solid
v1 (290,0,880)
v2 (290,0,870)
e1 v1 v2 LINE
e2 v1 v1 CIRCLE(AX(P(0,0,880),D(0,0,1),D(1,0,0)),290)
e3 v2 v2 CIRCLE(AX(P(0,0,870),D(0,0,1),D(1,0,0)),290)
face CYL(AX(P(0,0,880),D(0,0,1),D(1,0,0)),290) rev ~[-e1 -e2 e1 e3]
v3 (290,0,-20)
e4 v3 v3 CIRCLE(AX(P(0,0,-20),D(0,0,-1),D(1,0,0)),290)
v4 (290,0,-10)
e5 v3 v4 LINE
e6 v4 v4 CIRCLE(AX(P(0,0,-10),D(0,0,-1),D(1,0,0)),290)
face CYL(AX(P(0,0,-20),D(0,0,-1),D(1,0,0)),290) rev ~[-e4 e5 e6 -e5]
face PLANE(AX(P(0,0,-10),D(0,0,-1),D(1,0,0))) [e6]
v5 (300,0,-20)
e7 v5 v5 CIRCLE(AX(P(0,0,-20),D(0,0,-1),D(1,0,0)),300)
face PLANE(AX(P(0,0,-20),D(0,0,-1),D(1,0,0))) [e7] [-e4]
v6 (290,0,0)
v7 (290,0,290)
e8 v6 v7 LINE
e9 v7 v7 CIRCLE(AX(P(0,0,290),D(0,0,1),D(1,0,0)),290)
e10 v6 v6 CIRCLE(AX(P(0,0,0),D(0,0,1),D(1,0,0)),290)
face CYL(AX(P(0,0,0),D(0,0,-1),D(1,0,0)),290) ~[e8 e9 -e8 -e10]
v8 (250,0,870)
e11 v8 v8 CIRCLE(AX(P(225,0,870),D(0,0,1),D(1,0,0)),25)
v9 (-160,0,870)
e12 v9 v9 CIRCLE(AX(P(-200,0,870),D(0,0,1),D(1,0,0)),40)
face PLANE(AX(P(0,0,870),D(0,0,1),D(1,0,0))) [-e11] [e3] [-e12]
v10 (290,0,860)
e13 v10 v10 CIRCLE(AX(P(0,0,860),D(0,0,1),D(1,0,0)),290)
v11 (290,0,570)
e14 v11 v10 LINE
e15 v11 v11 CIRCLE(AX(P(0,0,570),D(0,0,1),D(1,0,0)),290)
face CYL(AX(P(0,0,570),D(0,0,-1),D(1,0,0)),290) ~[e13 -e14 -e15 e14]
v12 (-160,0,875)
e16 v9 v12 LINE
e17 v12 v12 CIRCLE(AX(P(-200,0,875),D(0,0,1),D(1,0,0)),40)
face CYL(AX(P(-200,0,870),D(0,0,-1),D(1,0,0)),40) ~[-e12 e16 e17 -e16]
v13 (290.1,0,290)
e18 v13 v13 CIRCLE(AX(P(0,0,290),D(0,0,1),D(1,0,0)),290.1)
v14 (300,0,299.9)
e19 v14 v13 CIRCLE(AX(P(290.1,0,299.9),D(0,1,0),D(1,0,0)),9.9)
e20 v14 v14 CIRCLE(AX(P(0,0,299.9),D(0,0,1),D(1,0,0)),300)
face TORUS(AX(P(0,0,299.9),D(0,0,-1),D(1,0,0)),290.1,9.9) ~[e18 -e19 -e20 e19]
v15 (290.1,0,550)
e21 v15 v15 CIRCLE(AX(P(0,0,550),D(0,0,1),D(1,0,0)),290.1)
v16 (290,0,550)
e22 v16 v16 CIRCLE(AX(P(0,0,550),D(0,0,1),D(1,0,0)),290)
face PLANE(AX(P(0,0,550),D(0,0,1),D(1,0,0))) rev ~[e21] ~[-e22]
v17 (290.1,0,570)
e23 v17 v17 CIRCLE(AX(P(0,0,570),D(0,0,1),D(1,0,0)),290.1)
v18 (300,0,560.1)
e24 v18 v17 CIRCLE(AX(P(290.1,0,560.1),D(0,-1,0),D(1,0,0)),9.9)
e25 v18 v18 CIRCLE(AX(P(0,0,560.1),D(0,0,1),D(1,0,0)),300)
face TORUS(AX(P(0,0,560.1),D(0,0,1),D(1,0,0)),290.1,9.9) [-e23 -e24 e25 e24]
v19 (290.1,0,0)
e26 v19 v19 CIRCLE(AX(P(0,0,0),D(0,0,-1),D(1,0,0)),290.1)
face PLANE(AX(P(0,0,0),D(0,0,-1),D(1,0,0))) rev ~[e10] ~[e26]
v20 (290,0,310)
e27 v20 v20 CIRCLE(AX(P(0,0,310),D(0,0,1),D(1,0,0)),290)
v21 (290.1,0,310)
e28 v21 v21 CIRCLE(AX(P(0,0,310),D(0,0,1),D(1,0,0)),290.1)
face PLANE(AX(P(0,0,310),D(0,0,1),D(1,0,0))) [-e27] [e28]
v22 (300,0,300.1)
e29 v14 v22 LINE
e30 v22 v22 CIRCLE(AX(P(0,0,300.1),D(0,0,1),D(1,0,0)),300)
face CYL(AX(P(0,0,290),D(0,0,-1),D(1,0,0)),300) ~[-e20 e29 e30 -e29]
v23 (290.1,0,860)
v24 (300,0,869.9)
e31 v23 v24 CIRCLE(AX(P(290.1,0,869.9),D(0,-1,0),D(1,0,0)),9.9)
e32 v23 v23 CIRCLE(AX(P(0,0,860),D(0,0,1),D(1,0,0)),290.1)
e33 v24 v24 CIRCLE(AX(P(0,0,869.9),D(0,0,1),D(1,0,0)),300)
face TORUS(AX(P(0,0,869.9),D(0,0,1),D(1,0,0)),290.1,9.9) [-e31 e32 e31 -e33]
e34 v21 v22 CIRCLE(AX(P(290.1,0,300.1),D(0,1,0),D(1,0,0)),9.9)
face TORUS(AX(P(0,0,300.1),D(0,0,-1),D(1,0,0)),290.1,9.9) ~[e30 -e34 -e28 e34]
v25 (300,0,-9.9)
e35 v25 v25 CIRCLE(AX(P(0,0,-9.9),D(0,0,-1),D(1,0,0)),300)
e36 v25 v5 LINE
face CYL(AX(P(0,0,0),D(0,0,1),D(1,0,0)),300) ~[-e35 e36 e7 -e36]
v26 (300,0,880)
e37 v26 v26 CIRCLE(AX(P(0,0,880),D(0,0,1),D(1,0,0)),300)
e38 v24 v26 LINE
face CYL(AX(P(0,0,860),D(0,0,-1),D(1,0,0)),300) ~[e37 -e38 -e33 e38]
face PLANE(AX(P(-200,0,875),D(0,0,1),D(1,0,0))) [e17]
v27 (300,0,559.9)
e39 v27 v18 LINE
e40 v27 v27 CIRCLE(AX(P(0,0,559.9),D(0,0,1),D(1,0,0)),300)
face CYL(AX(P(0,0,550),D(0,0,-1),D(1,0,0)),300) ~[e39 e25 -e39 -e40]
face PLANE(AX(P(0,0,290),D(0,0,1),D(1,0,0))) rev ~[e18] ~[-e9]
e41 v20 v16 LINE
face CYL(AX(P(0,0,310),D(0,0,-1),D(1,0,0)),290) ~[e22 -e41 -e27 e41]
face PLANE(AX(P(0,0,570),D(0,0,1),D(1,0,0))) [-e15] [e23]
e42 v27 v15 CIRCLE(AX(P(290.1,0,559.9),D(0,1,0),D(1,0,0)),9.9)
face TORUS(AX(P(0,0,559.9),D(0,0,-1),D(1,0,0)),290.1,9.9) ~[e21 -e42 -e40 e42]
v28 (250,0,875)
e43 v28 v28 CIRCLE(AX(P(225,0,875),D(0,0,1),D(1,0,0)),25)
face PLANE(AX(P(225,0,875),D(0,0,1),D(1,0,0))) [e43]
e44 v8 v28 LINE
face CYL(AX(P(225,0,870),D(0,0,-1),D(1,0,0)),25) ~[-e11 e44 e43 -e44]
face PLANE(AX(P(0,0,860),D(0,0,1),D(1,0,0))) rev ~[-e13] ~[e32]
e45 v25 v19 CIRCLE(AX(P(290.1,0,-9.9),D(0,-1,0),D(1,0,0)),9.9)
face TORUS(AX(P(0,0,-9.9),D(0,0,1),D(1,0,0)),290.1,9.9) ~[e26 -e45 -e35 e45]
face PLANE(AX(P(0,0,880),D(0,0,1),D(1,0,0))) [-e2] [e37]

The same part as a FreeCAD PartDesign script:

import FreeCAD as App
import Part
import Sketcher
from FreeCAD import Vector
Q = App.Units.Quantity


def edges_at(feature, points):
    """Names of the edges that pass closest to the given points."""
    edges = feature.Shape.Edges
    near = lambda p: min(range(len(edges)), key=lambda i: edges[i].distToShape(Part.Vertex(*p))[0])
    return sorted({f"Edge{near(p) + 1}" for p in points})

doc = App.newDocument("Part")
params = doc.addObject("Spreadsheet::Sheet", "Params")
for row, (alias, value) in enumerate([
    ("sketch1_diameter", "580 mm"),
    ("pad1_length", "290 mm"),
    ("sketch2_diameter", "600 mm"),
    ("pad2_length", "20 mm"),
    ("sketch3_diameter", "580 mm"),
    ("pad3_length", "240 mm"),
    ("sketch4_diameter", "600 mm"),
    ("pad4_length", "20 mm"),
    ("sketch5_diameter", "580 mm"),
    ("pad5_length", "290 mm"),
    ("fillet_radius", "9.9 mm"),
    ("sketch6_diameter", "600 mm"),
    ("pad6_length", "20 mm"),
    ("sketch7_diameter", "600 mm"),
    ("pad7_length", "20 mm"),
    ("fillet2_radius", "9.9 mm"),
    ("sketch8_diameter", "580 mm"),
    ("pocket1_length", "10 mm"),
    ("sketch9_diameter", "580 mm"),
    ("pocket2_length", "10 mm"),
    ("sketch10_diameter", "80 mm"),
    ("sketch10_diameter2", "50 mm"),
    ("pad8_length", "5 mm"),
], start=1):
    params.set(f"A{row}", alias)
    params.set(f"B{row}", "=" + value)
    params.setAlias(f"B{row}", alias)

body = doc.addObject("PartDesign::Body", "Body")

# Sketch on XY plane
sketch1 = doc.addObject("Sketcher::SketchObject", "Sketch")
body.addObject(sketch1)
sketch1.AttachmentSupport = (doc.XY_Plane, [""])
sketch1.MapMode = "FlatFace"
sketch1.addGeometry(Part.Circle(Vector(0, 0, 0), Vector(0, 0, 1), 290), False)
sketch1.addConstraint(Sketcher.Constraint("Coincident", 0, 3, -1, 1))
sketch1.addConstraint(Sketcher.Constraint("Diameter", 0, Q("580 mm")))
sketch1.setExpression("Constraints[1]", "Params.sketch1_diameter")
pad1 = doc.addObject("PartDesign::Pad", "Pad")
body.addObject(pad1)
pad1.Profile = sketch1
pad1.setExpression("Length", "Params.pad1_length")

# Sketch on XY plane
sketch2 = doc.addObject("Sketcher::SketchObject", "Sketch001")
body.addObject(sketch2)
sketch2.AttachmentSupport = (doc.XY_Plane, [""])
sketch2.MapMode = "FlatFace"
sketch2.AttachmentOffset = App.Placement(Vector(0, 0, 290), App.Rotation())
sketch2.addGeometry(Part.Circle(Vector(0, 0, 0), Vector(0, 0, 1), 300), False)
sketch2.addConstraint(Sketcher.Constraint("Coincident", 0, 3, -1, 1))
sketch2.addConstraint(Sketcher.Constraint("Diameter", 0, Q("600 mm")))
sketch2.setExpression("Constraints[1]", "Params.sketch2_diameter")
pad2 = doc.addObject("PartDesign::Pad", "Pad001")
body.addObject(pad2)
pad2.Profile = sketch2
pad2.setExpression("Length", "Params.pad2_length")

# Sketch on XY plane
sketch3 = doc.addObject("Sketcher::SketchObject", "Sketch002")
body.addObject(sketch3)
sketch3.AttachmentSupport = (doc.XY_Plane, [""])
sketch3.MapMode = "FlatFace"
sketch3.AttachmentOffset = App.Placement(Vector(0, 0, 310), App.Rotation())
sketch3.addGeometry(Part.Circle(Vector(0, 0, 0), Vector(0, 0, 1), 290), False)
sketch3.addConstraint(Sketcher.Constraint("Coincident", 0, 3, -1, 1))
sketch3.addConstraint(Sketcher.Constraint("Diameter", 0, Q("580 mm")))
sketch3.setExpression("Constraints[1]", "Params.sketch3_diameter")
pad3 = doc.addObject("PartDesign::Pad", "Pad002")
body.addObject(pad3)
pad3.Profile = sketch3
pad3.setExpression("Length", "Params.pad3_length")

# Sketch on XY plane
sketch4 = doc.addObject("Sketcher::SketchObject", "Sketch003")
body.addObject(sketch4)
sketch4.AttachmentSupport = (doc.XY_Plane, [""])
sketch4.MapMode = "FlatFace"
sketch4.AttachmentOffset = App.Placement(Vector(0, 0, 550), App.Rotation())
sketch4.addGeometry(Part.Circle(Vector(0, 0, 0), Vector(0, 0, 1), 300), False)
sketch4.addConstraint(Sketcher.Constraint("Coincident", 0, 3, -1, 1))
sketch4.addConstraint(Sketcher.Constraint("Diameter", 0, Q("600 mm")))
sketch4.setExpression("Constraints[1]", "Params.sketch4_diameter")
pad4 = doc.addObject("PartDesign::Pad", "Pad003")
body.addObject(pad4)
pad4.Profile = sketch4
pad4.setExpression("Length", "Params.pad4_length")

# Sketch on XY plane
sketch5 = doc.addObject("Sketcher::SketchObject", "Sketch004")
body.addObject(sketch5)
sketch5.AttachmentSupport = (doc.XY_Plane, [""])
sketch5.MapMode = "FlatFace"
sketch5.AttachmentOffset = App.Placement(Vector(0, 0, 570), App.Rotation())
sketch5.addGeometry(Part.Circle(Vector(0, 0, 0), Vector(0, 0, 1), 290), False)
sketch5.addConstraint(Sketcher.Constraint("Coincident", 0, 3, -1, 1))
sketch5.addConstraint(Sketcher.Constraint("Diameter", 0, Q("580 mm")))
sketch5.setExpression("Constraints[1]", "Params.sketch5_diameter")
pad5 = doc.addObject("PartDesign::Pad", "Pad004")
body.addObject(pad5)
pad5.Profile = sketch5
pad5.setExpression("Length", "Params.pad5_length")
doc.recompute()

fillet = doc.addObject("PartDesign::Fillet", "Fillet")
body.addObject(fillet)
fillet.Base = (pad5, edges_at(pad5, [
    (300, 0, 560),
    (-300, 0, 550),
    (-300, 0, 570),
    (300, 0, 300),
    (-300, 0, 290),
    (-300, 0, 310),
]))
fillet.setExpression("Radius", "Params.fillet_radius")

# Sketch on XY plane
sketch6 = doc.addObject("Sketcher::SketchObject", "Sketch005")
body.addObject(sketch6)
sketch6.AttachmentSupport = (doc.XY_Plane, [""])
sketch6.MapMode = "FlatFace"
sketch6.AttachmentOffset = App.Placement(Vector(0, 0, 860), App.Rotation())
sketch6.addGeometry(Part.Circle(Vector(0, 0, 0), Vector(0, 0, 1), 300), False)
sketch6.addConstraint(Sketcher.Constraint("Coincident", 0, 3, -1, 1))
sketch6.addConstraint(Sketcher.Constraint("Diameter", 0, Q("600 mm")))
sketch6.setExpression("Constraints[1]", "Params.sketch6_diameter")
pad6 = doc.addObject("PartDesign::Pad", "Pad005")
body.addObject(pad6)
pad6.Profile = sketch6
pad6.setExpression("Length", "Params.pad6_length")

# Sketch on XY plane
sketch7 = doc.addObject("Sketcher::SketchObject", "Sketch006")
body.addObject(sketch7)
sketch7.AttachmentSupport = (doc.XY_Plane, [""])
sketch7.MapMode = "FlatFace"
sketch7.addGeometry(Part.Circle(Vector(0, 0, 0), Vector(0, 0, 1), 300), False)
sketch7.addConstraint(Sketcher.Constraint("Coincident", 0, 3, -1, 1))
sketch7.addConstraint(Sketcher.Constraint("Diameter", 0, Q("600 mm")))
sketch7.setExpression("Constraints[1]", "Params.sketch7_diameter")
pad7 = doc.addObject("PartDesign::Pad", "Pad006")
body.addObject(pad7)
pad7.Profile = sketch7
pad7.setExpression("Length", "Params.pad7_length")
pad7.Reversed = True
doc.recompute()

fillet2 = doc.addObject("PartDesign::Fillet", "Fillet001")
body.addObject(fillet2)
fillet2.Base = (pad7, edges_at(pad7, [(-300, 0, 860), (-300, 0, 0)]))
fillet2.setExpression("Radius", "Params.fillet2_radius")

# Sketch on XY plane
sketch8 = doc.addObject("Sketcher::SketchObject", "Sketch007")
body.addObject(sketch8)
sketch8.AttachmentSupport = (doc.XY_Plane, [""])
sketch8.MapMode = "FlatFace"
sketch8.AttachmentOffset = App.Placement(Vector(0, 0, 880), App.Rotation())
sketch8.addGeometry(Part.Circle(Vector(0, 0, 0), Vector(0, 0, 1), 290), False)
sketch8.addConstraint(Sketcher.Constraint("Coincident", 0, 3, -1, 1))
sketch8.addConstraint(Sketcher.Constraint("Diameter", 0, Q("580 mm")))
sketch8.setExpression("Constraints[1]", "Params.sketch8_diameter")
pocket1 = doc.addObject("PartDesign::Pocket", "Pocket")
body.addObject(pocket1)
pocket1.Profile = sketch8
pocket1.setExpression("Length", "Params.pocket1_length")

# Sketch on XY plane
sketch9 = doc.addObject("Sketcher::SketchObject", "Sketch008")
body.addObject(sketch9)
sketch9.AttachmentSupport = (doc.XY_Plane, [""])
sketch9.MapMode = "FlatFace"
sketch9.AttachmentOffset = App.Placement(Vector(0, 0, -20), App.Rotation())
sketch9.addGeometry(Part.Circle(Vector(0, 0, 0), Vector(0, 0, 1), 290), False)
sketch9.addConstraint(Sketcher.Constraint("Coincident", 0, 3, -1, 1))
sketch9.addConstraint(Sketcher.Constraint("Diameter", 0, Q("580 mm")))
sketch9.setExpression("Constraints[1]", "Params.sketch9_diameter")
pocket2 = doc.addObject("PartDesign::Pocket", "Pocket001")
body.addObject(pocket2)
pocket2.Profile = sketch9
pocket2.setExpression("Length", "Params.pocket2_length")
pocket2.Reversed = True

# Sketch on XY plane
sketch10 = doc.addObject("Sketcher::SketchObject", "Sketch009")
body.addObject(sketch10)
sketch10.AttachmentSupport = (doc.XY_Plane, [""])
sketch10.MapMode = "FlatFace"
sketch10.AttachmentOffset = App.Placement(Vector(0, 0, 870), App.Rotation())
sketch10.addGeometry(Part.Circle(Vector(-200, 0, 0), Vector(0, 0, 1), 40), False)
sketch10.addGeometry(Part.Circle(Vector(225, 0, 0), Vector(0, 0, 1), 25), False)
sketch10.addConstraint(Sketcher.Constraint("PointOnObject", 0, 3, -1))
sketch10.addConstraint(Sketcher.Constraint("PointOnObject", 1, 3, -1))
sketch10.addConstraint(Sketcher.Constraint("Diameter", 0, Q("80 mm")))
sketch10.addConstraint(Sketcher.Constraint("Diameter", 1, Q("50 mm")))
sketch10.addConstraint(Sketcher.Constraint("DistanceX", 0, 3, -1, 1, Q("200 mm")))
sketch10.addConstraint(Sketcher.Constraint("DistanceX", -1, 1, 1, 3, Q("225 mm")))
sketch10.setExpression("Constraints[2]", "Params.sketch10_diameter")
sketch10.setExpression("Constraints[3]", "Params.sketch10_diameter2")
pad8 = doc.addObject("PartDesign::Pad", "Pad007")
body.addObject(pad8)
pad8.Profile = sketch10
pad8.setExpression("Length", "Params.pad8_length")

doc.recompute()
